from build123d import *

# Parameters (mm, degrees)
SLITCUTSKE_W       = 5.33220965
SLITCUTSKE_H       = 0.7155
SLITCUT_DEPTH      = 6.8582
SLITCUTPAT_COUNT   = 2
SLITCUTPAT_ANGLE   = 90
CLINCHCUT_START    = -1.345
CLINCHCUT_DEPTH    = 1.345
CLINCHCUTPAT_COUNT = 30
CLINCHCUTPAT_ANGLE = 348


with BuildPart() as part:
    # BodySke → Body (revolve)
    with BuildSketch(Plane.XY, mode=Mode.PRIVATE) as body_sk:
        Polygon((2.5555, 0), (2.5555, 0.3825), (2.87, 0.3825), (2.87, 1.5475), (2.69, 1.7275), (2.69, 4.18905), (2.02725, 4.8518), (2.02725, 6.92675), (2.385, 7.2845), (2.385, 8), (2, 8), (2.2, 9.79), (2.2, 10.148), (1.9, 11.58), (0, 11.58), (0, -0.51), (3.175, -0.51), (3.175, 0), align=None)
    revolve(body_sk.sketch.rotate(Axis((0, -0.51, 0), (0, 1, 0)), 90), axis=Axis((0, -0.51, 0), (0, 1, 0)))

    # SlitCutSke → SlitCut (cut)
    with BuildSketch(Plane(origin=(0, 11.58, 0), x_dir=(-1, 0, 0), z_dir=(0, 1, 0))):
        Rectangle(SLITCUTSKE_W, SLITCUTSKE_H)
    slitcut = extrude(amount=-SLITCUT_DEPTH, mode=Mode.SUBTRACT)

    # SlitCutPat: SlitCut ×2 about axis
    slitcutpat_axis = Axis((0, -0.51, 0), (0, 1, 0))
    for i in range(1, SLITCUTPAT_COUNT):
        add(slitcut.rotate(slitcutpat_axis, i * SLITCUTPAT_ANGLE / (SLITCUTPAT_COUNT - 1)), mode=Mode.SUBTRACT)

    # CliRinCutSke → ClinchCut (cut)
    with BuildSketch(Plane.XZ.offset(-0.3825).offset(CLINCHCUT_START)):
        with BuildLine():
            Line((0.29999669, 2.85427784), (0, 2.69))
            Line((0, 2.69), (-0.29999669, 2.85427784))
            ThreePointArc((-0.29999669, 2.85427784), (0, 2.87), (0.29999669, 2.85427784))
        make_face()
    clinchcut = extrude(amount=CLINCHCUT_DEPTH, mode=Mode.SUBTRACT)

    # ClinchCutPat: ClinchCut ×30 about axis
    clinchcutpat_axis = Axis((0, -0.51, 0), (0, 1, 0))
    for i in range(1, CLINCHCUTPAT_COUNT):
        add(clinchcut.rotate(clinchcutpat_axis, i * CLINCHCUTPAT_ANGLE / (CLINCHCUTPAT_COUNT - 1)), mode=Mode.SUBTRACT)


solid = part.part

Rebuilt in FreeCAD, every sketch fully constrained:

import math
import FreeCAD as App
import Part
import Sketcher
Q = App.Units.Quantity


def add_polygon(sketch, points):
    """Adds a closed chain of lines whose ends are joined by coincident constraints."""
    first, n = sketch.GeometryCount, len(points)
    for a, b in zip(points, points[1:] + points[:1]):
        sketch.addGeometry(Part.LineSegment(App.Vector(*a, 0), App.Vector(*b, 0)), False)
    for i in range(n):
        sketch.addConstraint(Sketcher.Constraint("Coincident", first + i, 2, first + (i + 1) % n, 1))

doc = App.newDocument("Part")
body = doc.addObject("PartDesign::Body", "Body")

# Sketch on XY plane
sketch1 = body.newObject("Sketcher::SketchObject", "Sketch")
sketch1.AttachmentSupport = (doc.getObject("XY_Plane"), [""])
sketch1.MapMode = "FlatFace"
add_polygon(sketch1, [(2.56, 0), (2.56, 0.38), (2.87, 0.38), (2.87, 1.55), (2.69, 1.73), (2.69, 4.19), (2.03, 4.85), (2.03, 6.93), (2.38, 7.28), (2.38, 8), (2, 8), (2.2, 9.79), (2.2, 10.15), (1.9, 11.58), (0, 11.58), (0, -0.51), (3.17, -0.51), (3.17, 0)])  # lines 0-17
sketch1.addConstraint(Sketcher.Constraint("Vertical", 0))
sketch1.addConstraint(Sketcher.Constraint("Horizontal", 1))
sketch1.addConstraint(Sketcher.Constraint("Vertical", 2))
sketch1.addConstraint(Sketcher.Constraint("Vertical", 4))
sketch1.addConstraint(Sketcher.Constraint("Vertical", 6))
sketch1.addConstraint(Sketcher.Constraint("Vertical", 8))
sketch1.addConstraint(Sketcher.Constraint("Horizontal", 9))
sketch1.addConstraint(Sketcher.Constraint("Vertical", 11))
sketch1.addConstraint(Sketcher.Constraint("Horizontal", 13))
sketch1.addConstraint(Sketcher.Constraint("Vertical", 14))
sketch1.addConstraint(Sketcher.Constraint("Horizontal", 15))
sketch1.addConstraint(Sketcher.Constraint("Vertical", 16))
sketch1.addConstraint(Sketcher.Constraint("Horizontal", 17))
sketch1.addConstraint(Sketcher.Constraint("PointOnObject", 13, 2, -2))
sketch1.addConstraint(Sketcher.Constraint("PointOnObject", 16, 2, -1))
sketch1.addConstraint(Sketcher.Constraint("Parallel", 3, 5))
sketch1.addConstraint(Sketcher.Constraint("Perpendicular", 5, 7))
sketch1.addConstraint(Sketcher.Constraint("Angle", 3, Q("135 deg")))
sketch1.addConstraint(Sketcher.Constraint("DistanceX", 13, 2, 13, 1, Q("1.9 mm")))
sketch1.addConstraint(Sketcher.Constraint("DistanceY", -1, 1, 8, 2, Q("8 mm")))
sketch1.addConstraint(Sketcher.Constraint("DistanceX", -1, 1, 9, 2, Q("2 mm")))
sketch1.addConstraint(Sketcher.Constraint("DistanceY", 14, 2, 14, 1, Q("12.09 mm")))
sketch1.addConstraint(Sketcher.Constraint("DistanceY", 16, 1, 16, 2, Q("0.51 mm")))
sketch1.addConstraint(Sketcher.Constraint("DistanceX", -1, 1, 10, 2, Q("2.2 mm")))
sketch1.addConstraint(Sketcher.Constraint("DistanceX", 9, 2, 9, 1, Q("0.385 mm")))
sketch1.addConstraint(Sketcher.Constraint("DistanceX", 15, 1, 15, 2, Q("3.175 mm")))
sketch1.addConstraint(Sketcher.Constraint("DistanceY", 2, 1, 2, 2, Q("1.165 mm")))
sketch1.addConstraint(Sketcher.Constraint("DistanceY", 11, 1, 11, 2, Q("0.358 mm")))
sketch1.addConstraint(Sketcher.Constraint("DistanceX", -1, 1, 1, 2, Q("2.87 mm")))
sketch1.addConstraint(Sketcher.Constraint("DistanceX", -1, 1, 3, 2, Q("2.69 mm")))
sketch1.addConstraint(Sketcher.Constraint("DistanceY", -1, 1, 10, 2, Q("9.79 mm")))
sketch1.addConstraint(Sketcher.Constraint("DistanceX", 1, 1, 1, 2, Q("0.3145 mm")))
sketch1.addConstraint(Sketcher.Constraint("DistanceY", 0, 1, 0, 2, Q("0.3825 mm")))
sketch1.addConstraint(Sketcher.Constraint("DistanceY", 8, 1, 8, 2, Q("0.7155 mm")))
sketch1.addConstraint(Sketcher.Constraint("DistanceY", 4, 1, 4, 2, Q("2.46155 mm")))
sketch1.addConstraint(Sketcher.Constraint("DistanceY", 6, 1, 6, 2, Q("2.07495 mm")))
revolution = body.newObject("PartDesign::Revolution", "Revolution")
revolution.Profile = sketch1
revolution.ReferenceAxis = (sketch1, ["V_Axis"])
revolution.Angle = 360

# Sketch on XZ plane
sketch2 = body.newObject("Sketcher::SketchObject", "Sketch001")
sketch2.AttachmentSupport = (doc.getObject("XZ_Plane"), [""])
sketch2.MapMode = "FlatFace"
sketch2.AttachmentOffset = App.Placement(App.Vector(0, 0, -11.58), App.Rotation())
add_polygon(sketch2, [(2.7, 0.4), (2.7, -0.4), (-2.7, -0.4), (-2.7, 0.4)])  # lines 0-3
sketch2.addConstraint(Sketcher.Constraint("Vertical", 0))
sketch2.addConstraint(Sketcher.Constraint("Horizontal", 1))
sketch2.addConstraint(Sketcher.Constraint("Vertical", 2))
sketch2.addConstraint(Sketcher.Constraint("Horizontal", 3))
sketch2.addConstraint(Sketcher.Constraint("Symmetric", 0, 2, 2, 2, -1, 1))
sketch2.addConstraint(Sketcher.Constraint("DistanceY", 0, 2, 0, 1, Q("0.7155 mm")))
sketch2.addConstraint(Sketcher.Constraint("DistanceX", 1, 2, 1, 1, Q("5.33221 mm")))
pocket1 = body.newObject("PartDesign::Pocket", "Pocket")
pocket1.Profile = sketch2
pocket1.Length = 6.8582
pocket1.Reversed = True
doc.recompute()

polarpattern = body.newObject("PartDesign::PolarPattern", "PolarPattern")
polarpattern.Originals = [pocket1]
polarpattern.Axis = (doc.getObject("Y_Axis"), [""])
polarpattern.Angle = 90
polarpattern.Occurrences = 2
body.Tip = polarpattern

# Sketch on XZ plane
sketch3 = body.newObject("Sketcher::SketchObject", "Sketch002")
sketch3.AttachmentSupport = (doc.getObject("XZ_Plane"), [""])
sketch3.MapMode = "FlatFace"
sketch3.AttachmentOffset = App.Placement(App.Vector(0, 0, -1.7275), App.Rotation())
sketch3.addGeometry(Part.LineSegment(App.Vector(0, 2.69, 0), App.Vector(0.3, 2.85, 0)), False)
sketch3.addGeometry(Part.ArcOfCircle(Part.Circle(App.Vector(0, 0, 0), App.Vector(0, 0, 1), 2.87), math.radians(84), math.radians(96)), False)
sketch3.addGeometry(Part.LineSegment(App.Vector(-0.3, 2.85, 0), App.Vector(0, 2.69, 0)), False)
sketch3.addConstraint(Sketcher.Constraint("Coincident", 0, 2, 1, 1))
sketch3.addConstraint(Sketcher.Constraint("Coincident", 1, 2, 2, 1))
sketch3.addConstraint(Sketcher.Constraint("Coincident", 2, 2, 0, 1))
sketch3.addConstraint(Sketcher.Constraint("Coincident", 1, 3, -1, 1))
sketch3.addConstraint(Sketcher.Constraint("PointOnObject", 2, 2, -2))
sketch3.addConstraint(Sketcher.Constraint("Horizontal", 0, 2, 1, 2))
sketch3.addConstraint(Sketcher.Constraint("Radius", 1, Q("2.87 mm")))
sketch3.addConstraint(Sketcher.Constraint("DistanceY", -1, 1, 2, 2, Q("2.69 mm")))
sketch3.addConstraint(Sketcher.Constraint("Distance", 0, Q("0.342031 mm")))
pocket2 = body.newObject("PartDesign::Pocket", "Pocket001")
pocket2.Profile = sketch3
pocket2.Length = 1.345
pocket2.Reversed = True
doc.recompute()

polarpattern2 = body.newObject("PartDesign::PolarPattern", "PolarPattern001")
polarpattern2.Originals = [pocket2]
polarpattern2.Axis = (doc.getObject("Y_Axis"), [""])
polarpattern2.Angle = 360
polarpattern2.Occurrences = 30
body.Tip = polarpattern2

doc.recompute()
